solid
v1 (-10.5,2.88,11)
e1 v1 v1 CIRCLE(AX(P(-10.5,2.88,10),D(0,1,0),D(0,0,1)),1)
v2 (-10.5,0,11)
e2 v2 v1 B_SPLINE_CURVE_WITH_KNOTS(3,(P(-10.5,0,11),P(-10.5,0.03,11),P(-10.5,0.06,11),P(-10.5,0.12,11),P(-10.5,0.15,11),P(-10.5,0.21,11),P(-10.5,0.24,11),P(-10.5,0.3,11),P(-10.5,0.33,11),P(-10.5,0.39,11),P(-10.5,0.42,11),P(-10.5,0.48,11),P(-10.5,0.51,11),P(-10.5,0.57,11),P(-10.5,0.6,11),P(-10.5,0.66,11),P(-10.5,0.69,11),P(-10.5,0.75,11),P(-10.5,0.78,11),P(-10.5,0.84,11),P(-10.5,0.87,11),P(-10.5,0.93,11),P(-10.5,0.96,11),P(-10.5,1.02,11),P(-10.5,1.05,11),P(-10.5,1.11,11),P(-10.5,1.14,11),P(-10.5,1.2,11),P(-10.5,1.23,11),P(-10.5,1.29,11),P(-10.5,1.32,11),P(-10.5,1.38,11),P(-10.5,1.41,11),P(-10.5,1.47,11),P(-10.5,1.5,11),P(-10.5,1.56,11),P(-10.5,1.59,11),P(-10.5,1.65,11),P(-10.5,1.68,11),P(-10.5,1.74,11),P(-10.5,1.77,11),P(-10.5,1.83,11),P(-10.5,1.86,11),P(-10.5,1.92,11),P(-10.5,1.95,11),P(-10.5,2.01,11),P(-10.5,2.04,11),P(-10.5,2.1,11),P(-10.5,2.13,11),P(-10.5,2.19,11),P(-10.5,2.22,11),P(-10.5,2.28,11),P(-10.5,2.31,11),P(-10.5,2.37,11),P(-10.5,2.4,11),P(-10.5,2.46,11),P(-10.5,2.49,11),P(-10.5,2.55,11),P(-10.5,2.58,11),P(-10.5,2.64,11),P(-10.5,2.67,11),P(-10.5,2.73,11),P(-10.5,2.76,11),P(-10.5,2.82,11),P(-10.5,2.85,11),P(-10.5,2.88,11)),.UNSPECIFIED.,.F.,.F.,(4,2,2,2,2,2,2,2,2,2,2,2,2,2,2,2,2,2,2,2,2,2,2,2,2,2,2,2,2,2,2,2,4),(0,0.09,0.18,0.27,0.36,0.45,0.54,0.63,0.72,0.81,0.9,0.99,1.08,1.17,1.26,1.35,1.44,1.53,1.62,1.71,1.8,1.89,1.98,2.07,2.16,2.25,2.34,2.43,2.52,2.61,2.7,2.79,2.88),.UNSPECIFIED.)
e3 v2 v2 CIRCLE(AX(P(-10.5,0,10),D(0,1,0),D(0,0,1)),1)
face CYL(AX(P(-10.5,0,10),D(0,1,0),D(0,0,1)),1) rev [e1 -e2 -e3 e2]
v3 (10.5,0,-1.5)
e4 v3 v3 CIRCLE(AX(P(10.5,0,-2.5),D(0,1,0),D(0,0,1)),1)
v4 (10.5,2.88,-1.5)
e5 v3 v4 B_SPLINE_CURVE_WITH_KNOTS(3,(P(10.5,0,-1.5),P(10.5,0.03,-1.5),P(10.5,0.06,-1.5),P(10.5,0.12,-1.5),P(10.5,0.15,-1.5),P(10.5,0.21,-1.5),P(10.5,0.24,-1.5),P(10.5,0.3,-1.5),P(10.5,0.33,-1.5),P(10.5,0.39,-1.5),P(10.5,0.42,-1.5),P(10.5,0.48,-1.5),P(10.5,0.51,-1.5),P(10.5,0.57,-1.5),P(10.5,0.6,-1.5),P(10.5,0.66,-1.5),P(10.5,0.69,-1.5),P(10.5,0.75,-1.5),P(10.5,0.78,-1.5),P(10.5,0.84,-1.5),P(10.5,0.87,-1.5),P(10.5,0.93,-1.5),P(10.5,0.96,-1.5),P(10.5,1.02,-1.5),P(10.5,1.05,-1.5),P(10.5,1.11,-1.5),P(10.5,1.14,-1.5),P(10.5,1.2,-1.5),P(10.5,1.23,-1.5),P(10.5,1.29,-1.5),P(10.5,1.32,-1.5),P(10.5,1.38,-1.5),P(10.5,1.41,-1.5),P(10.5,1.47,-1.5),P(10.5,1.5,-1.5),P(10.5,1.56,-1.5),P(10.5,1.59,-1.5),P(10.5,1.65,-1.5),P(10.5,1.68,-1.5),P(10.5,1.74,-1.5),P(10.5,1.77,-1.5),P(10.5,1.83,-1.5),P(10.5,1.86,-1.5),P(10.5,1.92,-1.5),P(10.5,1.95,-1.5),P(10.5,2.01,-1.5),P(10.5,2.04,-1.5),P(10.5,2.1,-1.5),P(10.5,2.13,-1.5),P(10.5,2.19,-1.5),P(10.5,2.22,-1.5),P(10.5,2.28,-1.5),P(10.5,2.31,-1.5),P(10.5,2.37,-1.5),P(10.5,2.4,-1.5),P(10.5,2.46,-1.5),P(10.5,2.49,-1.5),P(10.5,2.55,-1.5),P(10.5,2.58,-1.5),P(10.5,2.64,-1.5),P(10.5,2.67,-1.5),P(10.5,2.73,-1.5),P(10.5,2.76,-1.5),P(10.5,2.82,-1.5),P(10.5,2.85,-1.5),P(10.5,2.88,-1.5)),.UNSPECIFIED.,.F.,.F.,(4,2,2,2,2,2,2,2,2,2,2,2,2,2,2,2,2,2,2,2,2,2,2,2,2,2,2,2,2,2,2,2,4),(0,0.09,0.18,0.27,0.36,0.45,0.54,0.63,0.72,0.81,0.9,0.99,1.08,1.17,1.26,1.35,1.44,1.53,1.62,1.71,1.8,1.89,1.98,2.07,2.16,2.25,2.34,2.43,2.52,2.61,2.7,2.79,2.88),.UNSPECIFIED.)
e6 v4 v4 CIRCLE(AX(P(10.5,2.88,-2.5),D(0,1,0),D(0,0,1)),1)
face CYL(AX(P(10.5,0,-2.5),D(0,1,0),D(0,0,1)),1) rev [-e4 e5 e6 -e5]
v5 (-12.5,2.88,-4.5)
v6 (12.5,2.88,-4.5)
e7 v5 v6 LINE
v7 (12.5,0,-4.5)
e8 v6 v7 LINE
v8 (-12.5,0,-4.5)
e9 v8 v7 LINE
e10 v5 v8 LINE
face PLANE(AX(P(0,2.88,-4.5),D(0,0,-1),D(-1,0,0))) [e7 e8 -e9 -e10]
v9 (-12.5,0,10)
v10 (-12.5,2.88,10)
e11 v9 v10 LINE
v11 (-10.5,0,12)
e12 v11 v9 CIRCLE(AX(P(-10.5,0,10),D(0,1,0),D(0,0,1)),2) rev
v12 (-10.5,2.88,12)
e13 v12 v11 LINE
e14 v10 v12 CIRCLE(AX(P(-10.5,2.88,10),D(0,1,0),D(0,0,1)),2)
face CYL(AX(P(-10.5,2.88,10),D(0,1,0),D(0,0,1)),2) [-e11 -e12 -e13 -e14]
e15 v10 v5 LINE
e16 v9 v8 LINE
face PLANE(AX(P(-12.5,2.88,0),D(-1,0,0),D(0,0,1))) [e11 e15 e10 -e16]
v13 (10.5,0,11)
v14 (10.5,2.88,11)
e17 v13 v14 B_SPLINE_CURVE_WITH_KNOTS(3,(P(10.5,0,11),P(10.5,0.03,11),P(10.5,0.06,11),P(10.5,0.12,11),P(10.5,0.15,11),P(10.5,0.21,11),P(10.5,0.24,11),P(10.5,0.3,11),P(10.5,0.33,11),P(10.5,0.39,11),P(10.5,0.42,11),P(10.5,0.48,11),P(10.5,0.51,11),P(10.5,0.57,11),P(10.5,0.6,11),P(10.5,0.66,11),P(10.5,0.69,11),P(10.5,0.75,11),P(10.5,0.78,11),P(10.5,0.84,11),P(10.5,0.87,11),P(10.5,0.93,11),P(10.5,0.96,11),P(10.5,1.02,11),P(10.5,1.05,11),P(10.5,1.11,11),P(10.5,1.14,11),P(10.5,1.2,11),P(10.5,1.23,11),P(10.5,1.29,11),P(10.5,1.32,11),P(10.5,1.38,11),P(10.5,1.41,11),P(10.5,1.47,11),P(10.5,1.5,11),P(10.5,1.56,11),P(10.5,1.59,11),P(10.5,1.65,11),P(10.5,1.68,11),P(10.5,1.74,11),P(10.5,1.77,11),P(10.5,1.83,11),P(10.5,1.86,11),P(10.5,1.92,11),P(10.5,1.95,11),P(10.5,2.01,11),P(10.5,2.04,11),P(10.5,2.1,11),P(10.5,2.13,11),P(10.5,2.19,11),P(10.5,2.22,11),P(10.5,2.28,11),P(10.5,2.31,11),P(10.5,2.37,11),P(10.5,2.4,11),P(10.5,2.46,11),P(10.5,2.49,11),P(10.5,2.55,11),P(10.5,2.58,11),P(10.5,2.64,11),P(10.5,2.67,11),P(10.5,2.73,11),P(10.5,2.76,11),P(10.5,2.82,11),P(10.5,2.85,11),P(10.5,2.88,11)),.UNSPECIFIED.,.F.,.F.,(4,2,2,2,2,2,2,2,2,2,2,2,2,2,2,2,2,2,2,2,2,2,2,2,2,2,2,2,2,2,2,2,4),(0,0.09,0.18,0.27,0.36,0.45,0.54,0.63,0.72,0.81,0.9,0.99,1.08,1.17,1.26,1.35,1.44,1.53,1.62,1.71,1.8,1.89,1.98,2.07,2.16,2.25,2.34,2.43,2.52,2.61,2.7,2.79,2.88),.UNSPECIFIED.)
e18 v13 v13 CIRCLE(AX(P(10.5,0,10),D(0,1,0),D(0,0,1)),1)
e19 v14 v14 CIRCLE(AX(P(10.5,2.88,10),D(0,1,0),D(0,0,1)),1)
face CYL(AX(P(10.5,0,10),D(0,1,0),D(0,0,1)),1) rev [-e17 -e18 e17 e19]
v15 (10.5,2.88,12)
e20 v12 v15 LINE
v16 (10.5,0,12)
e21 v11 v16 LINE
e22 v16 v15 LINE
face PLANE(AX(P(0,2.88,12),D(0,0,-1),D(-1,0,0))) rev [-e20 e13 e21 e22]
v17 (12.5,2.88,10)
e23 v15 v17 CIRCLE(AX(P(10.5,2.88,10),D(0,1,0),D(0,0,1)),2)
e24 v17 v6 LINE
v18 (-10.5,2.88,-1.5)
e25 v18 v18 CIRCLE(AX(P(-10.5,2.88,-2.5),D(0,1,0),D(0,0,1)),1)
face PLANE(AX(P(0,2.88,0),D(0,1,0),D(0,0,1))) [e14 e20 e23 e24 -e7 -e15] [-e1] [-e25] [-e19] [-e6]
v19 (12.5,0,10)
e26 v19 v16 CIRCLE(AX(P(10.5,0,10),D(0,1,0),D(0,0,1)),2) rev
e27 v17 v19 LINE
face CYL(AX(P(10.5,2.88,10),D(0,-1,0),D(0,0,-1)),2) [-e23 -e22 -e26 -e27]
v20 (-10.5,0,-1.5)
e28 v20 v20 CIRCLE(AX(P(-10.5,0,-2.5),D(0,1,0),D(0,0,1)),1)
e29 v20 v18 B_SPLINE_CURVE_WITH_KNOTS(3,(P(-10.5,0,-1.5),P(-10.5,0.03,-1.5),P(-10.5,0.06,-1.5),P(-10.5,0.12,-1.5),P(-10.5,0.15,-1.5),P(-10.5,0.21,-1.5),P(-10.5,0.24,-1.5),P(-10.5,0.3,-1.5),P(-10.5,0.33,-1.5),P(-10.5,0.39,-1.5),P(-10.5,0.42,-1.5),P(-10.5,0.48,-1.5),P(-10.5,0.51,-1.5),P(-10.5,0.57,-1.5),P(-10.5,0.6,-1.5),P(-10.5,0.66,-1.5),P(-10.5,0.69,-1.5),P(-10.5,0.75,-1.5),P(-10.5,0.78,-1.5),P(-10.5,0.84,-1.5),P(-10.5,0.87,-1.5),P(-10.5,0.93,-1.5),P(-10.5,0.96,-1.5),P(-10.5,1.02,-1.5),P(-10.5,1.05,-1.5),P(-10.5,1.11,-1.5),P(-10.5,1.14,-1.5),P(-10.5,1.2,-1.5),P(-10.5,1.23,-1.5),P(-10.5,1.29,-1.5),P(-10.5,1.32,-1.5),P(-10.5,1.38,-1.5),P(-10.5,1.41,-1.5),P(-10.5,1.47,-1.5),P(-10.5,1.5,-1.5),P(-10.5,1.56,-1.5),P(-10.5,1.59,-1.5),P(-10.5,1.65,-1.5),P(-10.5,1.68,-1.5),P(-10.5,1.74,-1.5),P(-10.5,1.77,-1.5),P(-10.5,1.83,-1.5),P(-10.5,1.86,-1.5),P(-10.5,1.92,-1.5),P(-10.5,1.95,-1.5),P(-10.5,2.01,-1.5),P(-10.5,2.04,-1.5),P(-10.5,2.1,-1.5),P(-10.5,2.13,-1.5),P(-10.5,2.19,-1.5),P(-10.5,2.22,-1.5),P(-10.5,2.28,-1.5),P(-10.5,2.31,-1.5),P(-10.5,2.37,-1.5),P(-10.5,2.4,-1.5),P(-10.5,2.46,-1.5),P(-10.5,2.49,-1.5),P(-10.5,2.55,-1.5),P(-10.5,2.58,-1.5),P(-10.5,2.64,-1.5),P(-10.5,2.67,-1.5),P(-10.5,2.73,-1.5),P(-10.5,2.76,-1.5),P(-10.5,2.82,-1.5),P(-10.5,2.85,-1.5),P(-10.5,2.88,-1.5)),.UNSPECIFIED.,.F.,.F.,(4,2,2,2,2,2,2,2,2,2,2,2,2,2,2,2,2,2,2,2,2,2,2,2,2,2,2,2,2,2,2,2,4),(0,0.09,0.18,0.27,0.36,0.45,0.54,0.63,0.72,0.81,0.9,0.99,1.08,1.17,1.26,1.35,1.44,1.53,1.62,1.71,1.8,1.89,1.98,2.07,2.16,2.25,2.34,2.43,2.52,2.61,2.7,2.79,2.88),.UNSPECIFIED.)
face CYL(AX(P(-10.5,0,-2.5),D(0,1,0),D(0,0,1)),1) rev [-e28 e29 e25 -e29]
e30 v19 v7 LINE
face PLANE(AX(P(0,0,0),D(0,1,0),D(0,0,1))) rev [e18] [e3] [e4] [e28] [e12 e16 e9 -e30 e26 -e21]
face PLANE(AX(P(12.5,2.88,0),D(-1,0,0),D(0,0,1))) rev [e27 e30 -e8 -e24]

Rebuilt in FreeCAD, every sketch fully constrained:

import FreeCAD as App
import Part
import Sketcher
Q = App.Units.Quantity


def edges_at(feature, points):
    """Names of the edges that pass closest to the given points."""
    edges = feature.Shape.Edges
    near = lambda p: min(range(len(edges)), key=lambda i: edges[i].distToShape(Part.Vertex(*p))[0])
    return sorted({f"Edge{near(p) + 1}" for p in points})

doc = App.newDocument("Part")
body = doc.addObject("PartDesign::Body", "Body")

# Sketch on XZ plane
sketch1 = body.newObject("Sketcher::SketchObject", "Sketch")
sketch1.AttachmentSupport = (doc.getObject("XZ_Plane"), [""])
sketch1.MapMode = "FlatFace"
sketch1.addGeometry(Part.LineSegment(App.Vector(-12, -4, 0), App.Vector(-12, 12, 0)), False)
sketch1.addGeometry(Part.LineSegment(App.Vector(-12, 12, 0), App.Vector(12, 12, 0)), False)
sketch1.addGeometry(Part.LineSegment(App.Vector(12, 12, 0), App.Vector(12, -4, 0)), False)
sketch1.addGeometry(Part.LineSegment(App.Vector(12, -4, 0), App.Vector(-12, -4, 0)), False)
sketch1.addConstraint(Sketcher.Constraint("Coincident", 0, 2, 1, 1))
sketch1.addConstraint(Sketcher.Constraint("Coincident", 1, 2, 2, 1))
sketch1.addConstraint(Sketcher.Constraint("Coincident", 2, 2, 3, 1))
sketch1.addConstraint(Sketcher.Constraint("Coincident", 3, 2, 0, 1))
sketch1.addConstraint(Sketcher.Constraint("Vertical", 0))
sketch1.addConstraint(Sketcher.Constraint("Horizontal", 1))
sketch1.addConstraint(Sketcher.Constraint("Vertical", 2))
sketch1.addConstraint(Sketcher.Constraint("Horizontal", 3))
sketch1.addConstraint(Sketcher.Constraint("DistanceX", 1, 1, 1, 2, Q("25 mm")))
sketch1.addConstraint(Sketcher.Constraint("DistanceY", 0, 1, 0, 2, Q("16.5 mm")))
sketch1.addConstraint(Sketcher.Constraint("DistanceY", -1, 1, 0, 2, Q("12 mm")))
sketch1.addConstraint(Sketcher.Constraint("DistanceX", 0, 2, -1, 1, Q("12.5 mm")))
pad1 = body.newObject("PartDesign::Pad", "Pad")
pad1.Profile = sketch1
pad1.Length = 2.88
pad1.Reversed = True

# Sketch on XZ plane
sketch2 = body.newObject("Sketcher::SketchObject", "Sketch001")
sketch2.AttachmentSupport = (doc.getObject("XZ_Plane"), [""])
sketch2.MapMode = "FlatFace"
sketch2.AttachmentOffset = App.Placement(App.Vector(0, 0, -2.88), App.Rotation())
sketch2.addGeometry(Part.Circle(App.Vector(-10.5, -2.5, 0), App.Vector(0, 0, 1), 1), False)
sketch2.addGeometry(Part.Circle(App.Vector(-10.5, 10, 0), App.Vector(0, 0, 1), 1), False)
sketch2.addGeometry(Part.Circle(App.Vector(10.5, 10, 0), App.Vector(0, 0, 1), 1), False)
sketch2.addGeometry(Part.Circle(App.Vector(10.5, -2.5, 0), App.Vector(0, 0, 1), 1), False)
sketch2.addConstraint(Sketcher.Constraint("Equal", 0, 1))
sketch2.addConstraint(Sketcher.Constraint("Equal", 1, 2))
sketch2.addConstraint(Sketcher.Constraint("Equal", 2, 3))
sketch2.addConstraint(Sketcher.Constraint("Symmetric", 1, 3, 2, 3, -2))
sketch2.addConstraint(Sketcher.Constraint("Symmetric", 0, 3, 3, 3, -2))
sketch2.addConstraint(Sketcher.Constraint("Vertical", 0, 3, 1, 3))
sketch2.addConstraint(Sketcher.Constraint("Diameter", 0, Q("2 mm")))
sketch2.addConstraint(Sketcher.Constraint("DistanceY", -1, 1, 1, 3, Q("10 mm")))
sketch2.addConstraint(Sketcher.Constraint("DistanceX", 1, 3, 2, 3, Q("21 mm")))
sketch2.addConstraint(Sketcher.Constraint("DistanceY", 0, 3, -1, 1, Q("2.5 mm")))
pocket1 = body.newObject("PartDesign::Pocket", "Pocket")
pocket1.Profile = sketch2
pocket1.Type = "ThroughAll"
pocket1.Reversed = True
doc.recompute()

fillet = body.newObject("PartDesign::Fillet", "Fillet")
fillet.Base = (pocket1, edges_at(pocket1, [(12.5, 1.44, 12), (-12.5, 1.44, 12)]))
fillet.Radius = 2

doc.recompute()
